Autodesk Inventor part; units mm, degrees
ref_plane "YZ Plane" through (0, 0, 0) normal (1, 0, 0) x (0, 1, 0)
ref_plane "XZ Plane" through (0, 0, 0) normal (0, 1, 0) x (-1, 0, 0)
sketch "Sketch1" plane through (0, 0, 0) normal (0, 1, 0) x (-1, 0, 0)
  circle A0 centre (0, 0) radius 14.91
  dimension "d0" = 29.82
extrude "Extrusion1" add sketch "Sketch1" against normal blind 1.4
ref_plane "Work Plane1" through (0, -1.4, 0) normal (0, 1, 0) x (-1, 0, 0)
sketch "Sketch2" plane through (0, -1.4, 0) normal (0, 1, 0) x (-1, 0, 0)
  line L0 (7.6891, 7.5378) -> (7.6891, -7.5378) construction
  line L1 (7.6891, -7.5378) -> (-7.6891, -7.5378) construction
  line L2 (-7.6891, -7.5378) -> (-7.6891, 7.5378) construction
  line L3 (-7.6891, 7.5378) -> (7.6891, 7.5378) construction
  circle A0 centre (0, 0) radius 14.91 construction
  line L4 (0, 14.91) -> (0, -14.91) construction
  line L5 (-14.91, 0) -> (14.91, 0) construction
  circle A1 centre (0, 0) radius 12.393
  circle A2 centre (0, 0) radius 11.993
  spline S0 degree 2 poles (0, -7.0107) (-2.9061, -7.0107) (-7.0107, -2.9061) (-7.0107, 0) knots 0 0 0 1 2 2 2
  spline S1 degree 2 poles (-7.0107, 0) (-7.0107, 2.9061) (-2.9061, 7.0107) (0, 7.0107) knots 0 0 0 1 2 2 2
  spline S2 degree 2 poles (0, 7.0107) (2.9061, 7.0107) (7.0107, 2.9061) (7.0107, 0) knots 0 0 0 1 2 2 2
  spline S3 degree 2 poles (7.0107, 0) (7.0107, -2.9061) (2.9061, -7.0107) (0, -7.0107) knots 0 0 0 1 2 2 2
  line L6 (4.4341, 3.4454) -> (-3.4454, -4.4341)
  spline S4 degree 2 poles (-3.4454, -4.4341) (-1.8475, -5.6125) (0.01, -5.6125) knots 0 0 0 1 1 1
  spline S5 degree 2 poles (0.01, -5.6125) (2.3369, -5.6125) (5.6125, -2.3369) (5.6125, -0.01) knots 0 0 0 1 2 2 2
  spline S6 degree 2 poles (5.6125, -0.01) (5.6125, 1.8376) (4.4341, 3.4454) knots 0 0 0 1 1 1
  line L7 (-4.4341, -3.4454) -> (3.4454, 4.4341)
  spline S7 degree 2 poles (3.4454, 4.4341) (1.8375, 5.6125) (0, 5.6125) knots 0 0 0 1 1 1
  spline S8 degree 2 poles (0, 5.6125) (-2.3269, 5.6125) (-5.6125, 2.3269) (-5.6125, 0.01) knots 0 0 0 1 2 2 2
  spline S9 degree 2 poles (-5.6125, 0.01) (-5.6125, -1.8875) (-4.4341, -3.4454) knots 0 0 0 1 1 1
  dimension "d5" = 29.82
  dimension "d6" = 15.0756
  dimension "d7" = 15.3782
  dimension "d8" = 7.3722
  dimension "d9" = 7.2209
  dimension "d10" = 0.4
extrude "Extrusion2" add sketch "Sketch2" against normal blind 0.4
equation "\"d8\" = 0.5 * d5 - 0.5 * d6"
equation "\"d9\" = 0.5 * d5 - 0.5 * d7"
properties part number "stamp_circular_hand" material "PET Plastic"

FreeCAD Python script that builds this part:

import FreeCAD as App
import Part
import Sketcher
Q = App.Units.Quantity

doc = App.newDocument("Part")
body = doc.addObject("PartDesign::Body", "Body")

sketch1 = body.newObject("Sketcher::SketchObject", "Sketch")
sketch1.AttachmentSupport = (doc.getObject("XZ_Plane"), [""])
sketch1.MapMode = "FlatFace"
sketch1.addGeometry(Part.Circle(App.Vector(0, 0, 0), App.Vector(0, 0, 1), 14.91), False)
sketch1.addConstraint([
    Sketcher.Constraint("Coincident", 0, 3, -1, 1),
    Sketcher.Constraint("Diameter", 0, Q("29.82 mm")),
])
pad1 = body.newObject("PartDesign::Pad", "Pad")
pad1.Profile = sketch1
pad1.Length = 1.4

sketch2 = body.newObject("Sketcher::SketchObject", "Sketch001")
sketch2.AttachmentSupport = (doc.getObject("XZ_Plane"), [""])
sketch2.MapMode = "FlatFace"
sketch2.AttachmentOffset = App.Placement(App.Vector(0, 0, 1.4), App.Rotation())
sketch2.addGeometry([
    Part.Circle(App.Vector(0, 0, 0), App.Vector(0, 0, 1), 12.393),
    Part.Circle(App.Vector(0, 0, 0), App.Vector(0, 0, 1), 11.993),
    Part.BSplineCurve([App.Vector(0, -7.0107, 0), App.Vector(2.9061, -7.0107, 0), App.Vector(7.0107, -2.9061, 0), App.Vector(7.0107, 0, 0)], [3, 1, 3], [0, 1, 2], False, 2, [1, 1, 1, 1], False),
    Part.BSplineCurve([App.Vector(-7.0107, 0, 0), App.Vector(-7.0107, -2.9061, 0), App.Vector(-2.9061, -7.0107, 0), App.Vector(0, -7.0107, 0)], [3, 1, 3], [0, 1, 2], False, 2, [1, 1, 1, 1], False),
    Part.BSplineCurve([App.Vector(0, 7.0107, 0), App.Vector(-2.9061, 7.0107, 0), App.Vector(-7.0107, 2.9061, 0), App.Vector(-7.0107, 0, 0)], [3, 1, 3], [0, 1, 2], False, 2, [1, 1, 1, 1], False),
    Part.BSplineCurve([App.Vector(7.0107, 0, 0), App.Vector(7.0107, 2.9061, 0), App.Vector(2.9061, 7.0107, 0), App.Vector(0, 7.0107, 0)], [3, 1, 3], [0, 1, 2], False, 2, [1, 1, 1, 1], False),
    Part.LineSegment(App.Vector(3.4454, -4.4341, 0), App.Vector(-4.4341, 3.4454, 0)),
    Part.BSplineCurve([App.Vector(-5.6125, -0.01, 0), App.Vector(-5.6125, 1.8376, 0), App.Vector(-4.4341, 3.4454, 0)], [3, 3], [0, 1], False, 2, [1, 1, 1], False),
    Part.BSplineCurve([App.Vector(-0.01, -5.6125, 0), App.Vector(-2.3369, -5.6125, 0), App.Vector(-5.6125, -2.3369, 0), App.Vector(-5.6125, -0.01, 0)], [3, 1, 3], [0, 1, 2], False, 2, [1, 1, 1, 1], False),
    Part.BSplineCurve([App.Vector(3.4454, -4.4341, 0), App.Vector(1.8475, -5.6125, 0), App.Vector(-0.01, -5.6125, 0)], [3, 3], [0, 1], False, 2, [1, 1, 1], False),
    Part.LineSegment(App.Vector(-3.4454, 4.4341, 0), App.Vector(4.4341, -3.4454, 0)),
    Part.BSplineCurve([App.Vector(5.6125, 0.01, 0), App.Vector(5.6125, -1.8875, 0), App.Vector(4.4341, -3.4454, 0)], [3, 3], [0, 1], False, 2, [1, 1, 1], False),
    Part.BSplineCurve([App.Vector(0, 5.6125, 0), App.Vector(2.3269, 5.6125, 0), App.Vector(5.6125, 2.3269, 0), App.Vector(5.6125, 0.01, 0)], [3, 1, 3], [0, 1, 2], False, 2, [1, 1, 1, 1], False),
    Part.BSplineCurve([App.Vector(-3.4454, 4.4341, 0), App.Vector(-1.8375, 5.6125, 0), App.Vector(0, 5.6125, 0)], [3, 3], [0, 1], False, 2, [1, 1, 1], False),
], False)
sketch2.addConstraint([
    Sketcher.Constraint("Block", 2),
    Sketcher.Constraint("Block", 3),
    Sketcher.Constraint("Block", 4),
    Sketcher.Constraint("Block", 5),
    Sketcher.Constraint("Block", 7),
    Sketcher.Constraint("Block", 8),
    Sketcher.Constraint("Block", 9),
    Sketcher.Constraint("Block", 11),
    Sketcher.Constraint("Block", 12),
    Sketcher.Constraint("Block", 13),
    Sketcher.Constraint("Coincident", 6, 2, 7, 2),
    Sketcher.Constraint("Coincident", 9, 1, 6, 1),
    Sketcher.Constraint("Coincident", 10, 2, 11, 2),
    Sketcher.Constraint("Coincident", 13, 1, 10, 1),
    Sketcher.Constraint("Coincident", 0, 3, -1, 1),
    Sketcher.Constraint("Coincident", 1, 3, -1, 1),
    Sketcher.Constraint("Diameter", 0, Q("24.786 mm")),
    Sketcher.Constraint("Diameter", 1, Q("23.986 mm")),
])
pad2 = body.newObject("PartDesign::Pad", "Pad001")
pad2.Profile = sketch2
pad2.Length = 0.4

doc.recompute()
